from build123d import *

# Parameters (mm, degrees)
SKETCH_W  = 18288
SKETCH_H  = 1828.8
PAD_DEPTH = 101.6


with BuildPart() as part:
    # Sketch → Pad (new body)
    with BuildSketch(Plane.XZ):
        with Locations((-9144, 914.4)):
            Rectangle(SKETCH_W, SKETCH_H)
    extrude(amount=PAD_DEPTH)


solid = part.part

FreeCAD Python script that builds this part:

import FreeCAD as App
import Part
import Sketcher

V = App.Vector
Q = App.Units.Quantity

doc = App.newDocument("Part")
body = doc.addObject("PartDesign::Body", "Body")

sketch1 = doc.addObject("Sketcher::SketchObject", "Sketch")
body.addObject(sketch1)
sketch1.AttachmentSupport = (doc.XZ_Plane, [""])
sketch1.MapMode = "FlatFace"
sketch1.addGeometry([
    Part.LineSegment(V(-18288, 1829, 0), V(-18288, 0, 0)),
    Part.LineSegment(V(-18288, 0, 0), V(0, 0, 0)),
    Part.LineSegment(V(0, 0, 0), V(0, 1829, 0)),
    Part.LineSegment(V(0, 1829, 0), V(-18288, 1829, 0)),
], False)
sketch1.addConstraint([
    Sketcher.Constraint("Coincident", 0, 2, 1, 1),
    Sketcher.Constraint("Coincident", 1, 2, 2, 1),
    Sketcher.Constraint("Coincident", 2, 2, 3, 1),
    Sketcher.Constraint("Coincident", 3, 2, 0, 1),
    Sketcher.Constraint("Vertical", 0),
    Sketcher.Constraint("Horizontal", 1),
    Sketcher.Constraint("Vertical", 2),
    Sketcher.Constraint("Horizontal", 3),
    Sketcher.Constraint("Coincident", 1, 2, -1, 1),
    Sketcher.Constraint("DistanceX", 1, 1, 1, 2, Q("720 in")),
    Sketcher.Constraint("DistanceY", 0, 2, 0, 1, Q("72 in")),
])
pad1 = doc.addObject("PartDesign::Pad", "Pad")
body.addObject(pad1)
pad1.Profile = sketch1
pad1.Length = Q("4 in")

doc.recompute()
